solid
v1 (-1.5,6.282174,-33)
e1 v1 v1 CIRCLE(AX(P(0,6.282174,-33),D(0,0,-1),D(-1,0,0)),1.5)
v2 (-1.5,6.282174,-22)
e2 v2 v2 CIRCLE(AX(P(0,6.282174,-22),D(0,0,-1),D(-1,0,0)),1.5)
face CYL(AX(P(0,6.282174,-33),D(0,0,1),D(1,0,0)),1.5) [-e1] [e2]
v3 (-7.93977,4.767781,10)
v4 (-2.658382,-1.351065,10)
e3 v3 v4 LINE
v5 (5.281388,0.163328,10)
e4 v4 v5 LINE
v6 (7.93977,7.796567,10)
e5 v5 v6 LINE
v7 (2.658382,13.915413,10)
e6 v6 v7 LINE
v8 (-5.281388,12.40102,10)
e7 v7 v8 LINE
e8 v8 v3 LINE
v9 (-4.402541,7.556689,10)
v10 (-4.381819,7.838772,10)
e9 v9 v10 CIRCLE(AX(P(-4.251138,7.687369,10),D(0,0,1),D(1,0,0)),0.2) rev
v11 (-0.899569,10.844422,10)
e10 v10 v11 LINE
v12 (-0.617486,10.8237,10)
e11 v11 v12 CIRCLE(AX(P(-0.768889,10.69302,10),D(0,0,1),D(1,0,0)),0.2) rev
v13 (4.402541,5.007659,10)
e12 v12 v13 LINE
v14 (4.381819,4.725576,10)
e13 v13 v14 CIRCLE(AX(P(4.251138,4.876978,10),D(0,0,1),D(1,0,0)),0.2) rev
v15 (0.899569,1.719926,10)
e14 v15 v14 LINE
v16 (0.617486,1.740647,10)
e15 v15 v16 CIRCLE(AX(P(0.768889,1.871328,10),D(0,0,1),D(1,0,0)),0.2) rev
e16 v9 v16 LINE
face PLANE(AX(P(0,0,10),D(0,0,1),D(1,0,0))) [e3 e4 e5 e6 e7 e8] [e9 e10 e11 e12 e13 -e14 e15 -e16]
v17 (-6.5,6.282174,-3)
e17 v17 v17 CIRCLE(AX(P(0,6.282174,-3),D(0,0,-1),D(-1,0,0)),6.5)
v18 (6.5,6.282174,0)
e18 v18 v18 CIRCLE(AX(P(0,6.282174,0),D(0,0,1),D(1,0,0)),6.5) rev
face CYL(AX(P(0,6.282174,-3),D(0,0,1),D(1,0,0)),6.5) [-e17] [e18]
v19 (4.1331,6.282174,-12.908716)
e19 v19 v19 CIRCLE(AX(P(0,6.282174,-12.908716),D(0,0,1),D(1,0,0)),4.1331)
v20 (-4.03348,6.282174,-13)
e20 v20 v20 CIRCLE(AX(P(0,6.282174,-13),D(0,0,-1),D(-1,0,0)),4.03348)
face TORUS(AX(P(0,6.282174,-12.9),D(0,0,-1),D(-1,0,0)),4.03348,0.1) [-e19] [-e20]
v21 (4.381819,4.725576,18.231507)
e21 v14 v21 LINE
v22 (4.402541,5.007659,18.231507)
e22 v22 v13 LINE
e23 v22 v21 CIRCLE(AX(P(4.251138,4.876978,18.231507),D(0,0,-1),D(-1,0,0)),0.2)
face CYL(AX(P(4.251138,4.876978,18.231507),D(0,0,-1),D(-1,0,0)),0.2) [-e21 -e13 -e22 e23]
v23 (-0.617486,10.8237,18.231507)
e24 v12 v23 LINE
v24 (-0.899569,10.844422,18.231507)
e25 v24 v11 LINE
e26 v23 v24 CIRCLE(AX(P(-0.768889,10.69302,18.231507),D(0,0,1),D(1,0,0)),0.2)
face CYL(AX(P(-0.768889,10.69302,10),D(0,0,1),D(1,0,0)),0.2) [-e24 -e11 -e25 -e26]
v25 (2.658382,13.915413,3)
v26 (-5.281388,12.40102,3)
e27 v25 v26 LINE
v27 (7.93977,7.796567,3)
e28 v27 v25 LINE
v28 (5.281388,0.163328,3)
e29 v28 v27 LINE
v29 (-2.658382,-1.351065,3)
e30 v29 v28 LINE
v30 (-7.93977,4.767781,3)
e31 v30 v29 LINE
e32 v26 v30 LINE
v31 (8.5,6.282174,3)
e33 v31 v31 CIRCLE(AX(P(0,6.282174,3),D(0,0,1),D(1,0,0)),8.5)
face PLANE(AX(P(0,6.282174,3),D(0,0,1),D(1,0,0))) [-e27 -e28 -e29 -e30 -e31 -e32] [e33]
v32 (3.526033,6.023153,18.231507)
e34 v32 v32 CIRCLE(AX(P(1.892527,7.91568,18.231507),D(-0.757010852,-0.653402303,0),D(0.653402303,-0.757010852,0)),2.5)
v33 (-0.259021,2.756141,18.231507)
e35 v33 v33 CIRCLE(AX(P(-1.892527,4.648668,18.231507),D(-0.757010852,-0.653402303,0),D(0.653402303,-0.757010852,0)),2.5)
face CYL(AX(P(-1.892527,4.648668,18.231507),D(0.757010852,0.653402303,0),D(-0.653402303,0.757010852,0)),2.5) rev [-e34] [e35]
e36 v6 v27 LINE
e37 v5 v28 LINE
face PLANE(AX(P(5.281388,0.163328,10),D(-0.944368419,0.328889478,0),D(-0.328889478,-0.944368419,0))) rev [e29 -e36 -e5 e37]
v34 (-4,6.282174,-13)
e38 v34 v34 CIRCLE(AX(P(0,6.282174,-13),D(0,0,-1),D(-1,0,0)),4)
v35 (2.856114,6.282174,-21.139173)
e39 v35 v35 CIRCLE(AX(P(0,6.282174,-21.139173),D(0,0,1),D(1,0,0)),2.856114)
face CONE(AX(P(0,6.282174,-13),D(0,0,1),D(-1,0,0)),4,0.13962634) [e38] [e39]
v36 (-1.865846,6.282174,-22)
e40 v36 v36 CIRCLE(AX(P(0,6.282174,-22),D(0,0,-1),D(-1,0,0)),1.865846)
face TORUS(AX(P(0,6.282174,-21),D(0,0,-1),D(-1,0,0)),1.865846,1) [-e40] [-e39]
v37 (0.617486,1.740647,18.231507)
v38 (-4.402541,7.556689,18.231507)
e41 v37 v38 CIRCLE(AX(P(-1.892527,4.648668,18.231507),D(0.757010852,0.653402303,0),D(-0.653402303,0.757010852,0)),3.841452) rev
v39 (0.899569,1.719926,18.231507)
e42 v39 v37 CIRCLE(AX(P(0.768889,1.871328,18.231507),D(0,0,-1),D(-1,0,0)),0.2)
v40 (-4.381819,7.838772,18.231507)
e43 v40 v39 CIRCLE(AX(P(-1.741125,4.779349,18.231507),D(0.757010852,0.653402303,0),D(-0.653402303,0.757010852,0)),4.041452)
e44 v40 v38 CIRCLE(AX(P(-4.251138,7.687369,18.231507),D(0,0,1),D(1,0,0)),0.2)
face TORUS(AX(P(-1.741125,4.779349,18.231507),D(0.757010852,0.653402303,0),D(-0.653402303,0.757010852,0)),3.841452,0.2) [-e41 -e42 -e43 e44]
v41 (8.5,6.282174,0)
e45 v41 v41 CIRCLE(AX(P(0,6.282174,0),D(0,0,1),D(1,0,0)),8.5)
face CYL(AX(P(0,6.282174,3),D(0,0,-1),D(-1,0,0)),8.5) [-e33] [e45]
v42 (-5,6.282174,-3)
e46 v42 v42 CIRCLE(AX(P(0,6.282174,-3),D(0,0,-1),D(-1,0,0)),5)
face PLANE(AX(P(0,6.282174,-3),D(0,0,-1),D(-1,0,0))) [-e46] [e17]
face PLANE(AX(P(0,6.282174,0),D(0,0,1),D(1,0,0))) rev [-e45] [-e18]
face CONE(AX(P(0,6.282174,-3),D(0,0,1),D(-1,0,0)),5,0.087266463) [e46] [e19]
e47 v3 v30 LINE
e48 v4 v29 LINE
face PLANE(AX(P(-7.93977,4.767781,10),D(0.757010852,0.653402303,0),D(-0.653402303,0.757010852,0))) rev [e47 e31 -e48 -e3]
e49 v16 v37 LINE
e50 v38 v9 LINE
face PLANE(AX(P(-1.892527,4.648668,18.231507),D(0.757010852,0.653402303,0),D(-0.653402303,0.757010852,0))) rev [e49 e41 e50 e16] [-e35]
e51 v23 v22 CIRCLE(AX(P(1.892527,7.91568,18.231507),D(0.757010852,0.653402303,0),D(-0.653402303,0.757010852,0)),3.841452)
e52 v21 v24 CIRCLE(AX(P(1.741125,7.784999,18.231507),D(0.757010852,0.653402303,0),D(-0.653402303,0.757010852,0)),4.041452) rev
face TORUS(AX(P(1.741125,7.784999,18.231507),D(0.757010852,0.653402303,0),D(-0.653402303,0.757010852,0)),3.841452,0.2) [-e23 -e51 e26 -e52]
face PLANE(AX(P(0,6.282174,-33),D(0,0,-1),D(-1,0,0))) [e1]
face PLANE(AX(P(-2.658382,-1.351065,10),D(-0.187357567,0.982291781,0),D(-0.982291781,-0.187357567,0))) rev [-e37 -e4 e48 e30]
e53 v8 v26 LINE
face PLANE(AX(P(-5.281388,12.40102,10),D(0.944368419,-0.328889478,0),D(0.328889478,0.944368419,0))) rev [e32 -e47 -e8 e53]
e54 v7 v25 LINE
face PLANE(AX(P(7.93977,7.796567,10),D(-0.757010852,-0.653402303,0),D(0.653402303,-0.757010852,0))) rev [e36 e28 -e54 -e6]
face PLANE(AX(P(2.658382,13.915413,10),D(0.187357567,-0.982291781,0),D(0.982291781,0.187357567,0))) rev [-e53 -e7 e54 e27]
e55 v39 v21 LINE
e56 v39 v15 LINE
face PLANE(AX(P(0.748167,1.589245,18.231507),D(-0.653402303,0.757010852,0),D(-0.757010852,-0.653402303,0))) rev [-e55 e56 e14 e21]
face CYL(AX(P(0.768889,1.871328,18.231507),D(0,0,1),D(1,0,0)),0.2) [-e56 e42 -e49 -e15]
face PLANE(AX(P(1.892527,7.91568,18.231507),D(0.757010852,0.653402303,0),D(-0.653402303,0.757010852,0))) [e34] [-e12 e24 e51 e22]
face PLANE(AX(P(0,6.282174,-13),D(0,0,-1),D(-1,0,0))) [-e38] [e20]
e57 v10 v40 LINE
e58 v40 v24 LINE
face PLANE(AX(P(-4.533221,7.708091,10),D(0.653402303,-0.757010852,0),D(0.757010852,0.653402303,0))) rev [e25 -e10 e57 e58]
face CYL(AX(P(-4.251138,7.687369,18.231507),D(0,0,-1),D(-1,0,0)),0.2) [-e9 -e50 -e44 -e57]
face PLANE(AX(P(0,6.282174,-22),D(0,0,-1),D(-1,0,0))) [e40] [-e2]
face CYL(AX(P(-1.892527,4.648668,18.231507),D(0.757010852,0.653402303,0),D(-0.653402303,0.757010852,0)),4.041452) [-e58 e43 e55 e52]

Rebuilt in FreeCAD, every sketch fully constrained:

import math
import FreeCAD as App
import Part
import Sketcher
from FreeCAD import Vector


def edges_at(feature, points):
    """Names of the edges that pass closest to the given points."""
    edges = feature.Shape.Edges
    near = lambda p: min(range(len(edges)), key=lambda i: edges[i].distToShape(Part.Vertex(*p))[0])
    return sorted({f"Edge{near(p) + 1}" for p in points})


def add_polygon(sketch, points):
    """Adds a closed chain of lines whose ends are joined by coincident constraints."""
    first, n = sketch.GeometryCount, len(points)
    for a, b in zip(points, points[1:] + points[:1]):
        sketch.addGeometry(Part.LineSegment(App.Vector(*a, 0), App.Vector(*b, 0)), False)
    for i in range(n):
        sketch.addConstraint(Sketcher.Constraint("Coincident", first + i, 2, first + (i + 1) % n, 1))

doc = App.newDocument("Part")
params = doc.addObject("Spreadsheet::Sheet", "Params")
for row, (alias, value) in enumerate([
    ("sketch1_diameter", "17 mm"),
    ("pad1_length", "3 mm"),
    ("pad2_length", "7 mm"),
    ("sketch3_diameter", "13 mm"),
    ("pad3_length", "3 mm"),
    ("sketch4_diameter", "10 mm"),
    ("pad4_length", "10 mm"),
    ("pad4_taper", "-5 deg"),
    ("sketch5_diameter", "8 mm"),
    ("pad5_length", "9 mm"),
    ("pad5_taper", "-8 deg"),
    ("fillet_radius", "0.1 mm"),
    ("fillet2_radius", "1 mm"),
    ("sketch6_diameter", "5 mm"),
    ("pad6_length", "5 mm"),
    ("fillet3_radius", "0.2 mm"),
    ("sketch7_diameter", "3 mm"),
    ("pad7_length", "11 mm"),
], start=1):
    params.set(f"A{row}", alias)
    params.set(f"B{row}", "=" + value)
    params.setAlias(f"B{row}", alias)

body = doc.addObject("PartDesign::Body", "Body")

# Sketch on XY plane
sketch1 = doc.addObject("Sketcher::SketchObject", "Sketch")
body.addObject(sketch1)
sketch1.AttachmentSupport = (doc.XY_Plane, [""])
sketch1.MapMode = "FlatFace"
sketch1.addGeometry(Part.Circle(Vector(0, 6, 0), Vector(0, 0, 1), 8), False)
sketch1.addConstraint([
    Sketcher.Constraint("PointOnObject", 0, 3, -2),
    Sketcher.Constraint("Diameter", 0, 17.0),
    Sketcher.Constraint("DistanceY", -1, 1, 0, 3, 6.282174),
])
sketch1.setExpression("Constraints[1]", "Params.sketch1_diameter")
pad1 = doc.addObject("PartDesign::Pad", "Pad")
body.addObject(pad1)
pad1.Profile = sketch1
pad1.setExpression("Length", "Params.pad1_length")

# Sketch on XY plane
sketch2 = doc.addObject("Sketcher::SketchObject", "Sketch001")
body.addObject(sketch2)
sketch2.AttachmentSupport = (doc.XY_Plane, [""])
sketch2.MapMode = "FlatFace"
sketch2.AttachmentOffset = App.Placement(Vector(0, 0, 3), App.Rotation())
add_polygon(sketch2, [(5, 0), (8, 8), (3, 14), (-5, 12), (-8, 5), (-3, -1)])  # lines 0-5
sketch2.addConstraint([
    Sketcher.Constraint("Parallel", 0, 3),
    Sketcher.Constraint("Parallel", 1, 4),
    Sketcher.Constraint("Parallel", 2, 5),
    Sketcher.Constraint("Equal", 0, 1),
    Sketcher.Constraint("Equal", 1, 2),
    Sketcher.Constraint("Equal", 2, 3),
    Sketcher.Constraint("DistanceX", -1, 1, 0, 2, 7.93977),
    Sketcher.Constraint("DistanceX", -1, 1, 1, 2, 2.658382),
    Sketcher.Constraint("DistanceY", -1, 1, 2, 2, 12.40102),
    Sketcher.Constraint("DistanceX", 3, 2, -1, 1, 7.93977),
    Sketcher.Constraint("DistanceY", -1, 1, 3, 2, 4.767781),
    Sketcher.Constraint("DistanceY", -1, 1, 5, 2, 0.163328),
])
pad2 = doc.addObject("PartDesign::Pad", "Pad001")
body.addObject(pad2)
pad2.Profile = sketch2
pad2.setExpression("Length", "Params.pad2_length")

# Sketch on XY plane
sketch3 = doc.addObject("Sketcher::SketchObject", "Sketch002")
body.addObject(sketch3)
sketch3.AttachmentSupport = (doc.XY_Plane, [""])
sketch3.MapMode = "FlatFace"
sketch3.addGeometry(Part.Circle(Vector(0, 6, 0), Vector(0, 0, 1), 6), False)
sketch3.addConstraint([
    Sketcher.Constraint("PointOnObject", 0, 3, -2),
    Sketcher.Constraint("Diameter", 0, 13.0),
    Sketcher.Constraint("DistanceY", -1, 1, 0, 3, 6.282174),
])
sketch3.setExpression("Constraints[1]", "Params.sketch3_diameter")
pad3 = doc.addObject("PartDesign::Pad", "Pad002")
body.addObject(pad3)
pad3.Profile = sketch3
pad3.setExpression("Length", "Params.pad3_length")
pad3.Reversed = True

# Sketch on XY plane
sketch4 = doc.addObject("Sketcher::SketchObject", "Sketch003")
body.addObject(sketch4)
sketch4.AttachmentSupport = (doc.XY_Plane, [""])
sketch4.MapMode = "FlatFace"
sketch4.AttachmentOffset = App.Placement(Vector(0, 0, -3), App.Rotation())
sketch4.addGeometry(Part.Circle(Vector(0, 6, 0), Vector(0, 0, 1), 5), False)
sketch4.addConstraint([
    Sketcher.Constraint("PointOnObject", 0, 3, -2),
    Sketcher.Constraint("Diameter", 0, 10.0),
    Sketcher.Constraint("DistanceY", -1, 1, 0, 3, 6.282174),
])
sketch4.setExpression("Constraints[1]", "Params.sketch4_diameter")
pad4 = doc.addObject("PartDesign::Pad", "Pad003")
body.addObject(pad4)
pad4.Profile = sketch4
pad4.setExpression("Length", "Params.pad4_length")
pad4.Reversed = True
pad4.setExpression("TaperAngle", "Params.pad4_taper")

# Sketch on XY plane
sketch5 = doc.addObject("Sketcher::SketchObject", "Sketch004")
body.addObject(sketch5)
sketch5.AttachmentSupport = (doc.XY_Plane, [""])
sketch5.MapMode = "FlatFace"
sketch5.AttachmentOffset = App.Placement(Vector(0, 0, -13), App.Rotation())
sketch5.addGeometry(Part.Circle(Vector(0, 6.3, 0), Vector(0, 0, 1), 4), False)
sketch5.addConstraint([
    Sketcher.Constraint("PointOnObject", 0, 3, -2),
    Sketcher.Constraint("Diameter", 0, 8.0),
    Sketcher.Constraint("DistanceY", -1, 1, 0, 3, 6.282174),
])
sketch5.setExpression("Constraints[1]", "Params.sketch5_diameter")
pad5 = doc.addObject("PartDesign::Pad", "Pad004")
body.addObject(pad5)
pad5.Profile = sketch5
pad5.setExpression("Length", "Params.pad5_length")
pad5.Reversed = True
pad5.setExpression("TaperAngle", "Params.pad5_taper")
doc.recompute()

fillet = doc.addObject("PartDesign::Fillet", "Fillet")
body.addObject(fillet)
fillet.Base = (pad5, edges_at(pad5, [(4.125, 6.282, -13)]))
fillet.setExpression("Radius", "Params.fillet_radius")
doc.recompute()

fillet2 = doc.addObject("PartDesign::Fillet", "Fillet001")
body.addObject(fillet2)
fillet2.Base = (fillet, edges_at(fillet, [(2.735, 6.282, -22)]))
fillet2.setExpression("Radius", "Params.fillet2_radius")

# Sketch on an angled plane
sketch6 = doc.addObject("Sketcher::SketchObject", "Sketch005")
body.addObject(sketch6)
sketch6.Placement = App.Placement(Vector(3.107368, 2.682077, 0), App.Rotation(Vector(0, 0, 1), Vector(-0.653402303, 0.757010852, 0), Vector(-0.757010852, -0.653402303, 0), "ZXY"))
sketch6.addGeometry([
    Part.LineSegment(Vector(18.2, 8.8, 0), Vector(10, 8.8, 0)),  # 0
    Part.LineSegment(Vector(10, 8.8, 0), Vector(10, 0.7, 0)),  # 1
    Part.LineSegment(Vector(10, 0.7, 0), Vector(18.2, 0.7, 0)),  # 2
    Part.ArcOfCircle(Part.Circle(Vector(18.2, 4.8, 0), Vector(0, 0, 1), 4), math.radians(-90), math.radians(90)),  # 3
    Part.Circle(Vector(18.2, 4.8, 0), Vector(0, 0, 1), 2.5),  # 4
], False)
sketch6.addConstraint([
    Sketcher.Constraint("Coincident", 0, 2, 1, 1),
    Sketcher.Constraint("Coincident", 1, 2, 2, 1),
    Sketcher.Constraint("Tangent", 2, 2, 3, 1),
    Sketcher.Constraint("Tangent", 3, 2, 0, 1),
    Sketcher.Constraint("Horizontal", 0),
    Sketcher.Constraint("Vertical", 1),
    Sketcher.Constraint("Horizontal", 2),
    Sketcher.Constraint("Coincident", 4, 3, 3, 3),
    Sketcher.Constraint("Diameter", 4, 5.0),
    Sketcher.Constraint("DistanceX", -1, 1, 0, 2, 10.0),
    Sketcher.Constraint("Radius", 3, 4.041452),
    Sketcher.Constraint("DistanceX", 0, 2, 0, 1, 8.231507),
    Sketcher.Constraint("DistanceY", -1, 1, 1, 2, 0.714222),
])
sketch6.setExpression("Constraints[8]", "Params.sketch6_diameter")
pad6 = doc.addObject("PartDesign::Pad", "Pad005")
body.addObject(pad6)
pad6.Profile = sketch6
pad6.setExpression("Length", "Params.pad6_length")
pad6.Midplane = True
doc.recompute()

fillet3 = doc.addObject("PartDesign::Fillet", "Fillet002")
body.addObject(fillet3)
fillet3.Base = (pad6, edges_at(pad6, [
    (0.748, 1.589, 14.116),
    (-1.893, 4.649, 22.273),
    (-4.533, 7.708, 14.116),
    (4.533, 4.856, 14.116),
    (1.893, 7.916, 22.273),
    (-0.748, 10.975, 14.116),
]))
fillet3.setExpression("Radius", "Params.fillet3_radius")

# Sketch on XY plane
sketch7 = doc.addObject("Sketcher::SketchObject", "Sketch006")
body.addObject(sketch7)
sketch7.AttachmentSupport = (doc.XY_Plane, [""])
sketch7.MapMode = "FlatFace"
sketch7.AttachmentOffset = App.Placement(Vector(0, 0, -22), App.Rotation())
sketch7.addGeometry(Part.Circle(Vector(0, 6.3, 0), Vector(0, 0, 1), 1.5), False)
sketch7.addConstraint([
    Sketcher.Constraint("PointOnObject", 0, 3, -2),
    Sketcher.Constraint("Diameter", 0, 3.0),
    Sketcher.Constraint("DistanceY", -1, 1, 0, 3, 6.282174),
])
sketch7.setExpression("Constraints[1]", "Params.sketch7_diameter")
pad7 = doc.addObject("PartDesign::Pad", "Pad006")
body.addObject(pad7)
pad7.Profile = sketch7
pad7.setExpression("Length", "Params.pad7_length")
pad7.Reversed = True

doc.recompute()
